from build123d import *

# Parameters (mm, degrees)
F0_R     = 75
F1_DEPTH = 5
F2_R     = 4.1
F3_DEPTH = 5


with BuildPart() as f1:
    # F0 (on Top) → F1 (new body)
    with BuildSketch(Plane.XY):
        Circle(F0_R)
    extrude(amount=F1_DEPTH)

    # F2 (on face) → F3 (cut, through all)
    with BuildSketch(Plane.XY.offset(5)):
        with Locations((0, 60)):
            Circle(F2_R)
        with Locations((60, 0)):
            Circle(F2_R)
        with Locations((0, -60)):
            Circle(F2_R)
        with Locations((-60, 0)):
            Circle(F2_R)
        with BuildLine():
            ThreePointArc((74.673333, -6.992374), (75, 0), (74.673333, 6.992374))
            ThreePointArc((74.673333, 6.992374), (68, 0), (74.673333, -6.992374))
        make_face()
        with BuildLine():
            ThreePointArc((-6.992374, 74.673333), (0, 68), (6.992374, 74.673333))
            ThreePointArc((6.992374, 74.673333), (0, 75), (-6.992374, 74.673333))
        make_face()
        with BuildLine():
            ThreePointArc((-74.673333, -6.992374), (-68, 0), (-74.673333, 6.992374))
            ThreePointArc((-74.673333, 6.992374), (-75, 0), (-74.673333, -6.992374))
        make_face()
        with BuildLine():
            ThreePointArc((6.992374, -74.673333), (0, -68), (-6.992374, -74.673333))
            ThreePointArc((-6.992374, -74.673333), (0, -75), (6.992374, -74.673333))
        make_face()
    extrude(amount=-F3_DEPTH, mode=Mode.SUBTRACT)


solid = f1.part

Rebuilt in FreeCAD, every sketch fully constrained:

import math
import FreeCAD as App
import Part
import Sketcher

V = App.Vector

doc = App.newDocument("Part")
body = doc.addObject("PartDesign::Body", "Body")

# Sketch on XY plane
sketch1 = doc.addObject("Sketcher::SketchObject", "Sketch")
body.addObject(sketch1)
sketch1.AttachmentSupport = (doc.XY_Plane, [""])
sketch1.MapMode = "FlatFace"
sketch1.addGeometry(Part.Circle(V(0, 0, 0), V(0, 0, 1), 75), False)
sketch1.addConstraint([
    Sketcher.Constraint("Coincident", 0, 3, -1, 1),
    Sketcher.Constraint("Diameter", 0, 150.0),
])
pad1 = doc.addObject("PartDesign::Pad", "Pad")
body.addObject(pad1)
pad1.Profile = sketch1
pad1.Length = 5

# Sketch on XY plane
sketch2 = doc.addObject("Sketcher::SketchObject", "Sketch001")
body.addObject(sketch2)
sketch2.AttachmentSupport = (doc.XY_Plane, [""])
sketch2.MapMode = "FlatFace"
sketch2.AttachmentOffset = App.Placement(V(0, 0, 5), App.Rotation())
sketch2.addGeometry([
    Part.Circle(V(0, 60, 0), V(0, 0, 1), 4.1),  # 0
    Part.Circle(V(60, 0, 0), V(0, 0, 1), 4.1),  # 1
    Part.Circle(V(0, -60, 0), V(0, 0, 1), 4.1),  # 2
    Part.Circle(V(-60, 0, 0), V(0, 0, 1), 4.1),  # 3
    Part.ArcOfCircle(Part.Circle(V(0.000068, 0, 0), V(0, 0, 1), 74.999932), math.radians(-5.349554), math.radians(5.349554)),  # 4
    Part.ArcOfCircle(Part.Circle(V(75, 0, 0), V(0, 0, 1), 7), math.radians(92.67478), math.radians(267.32522)),  # 5
    Part.ArcOfCircle(Part.Circle(V(0, 75, 0), V(0, 0, 1), 7), math.radians(-177.32522), math.radians(-2.67478)),  # 6
    Part.ArcOfCircle(Part.Circle(V(0, 0.000068, 0), V(0, 0, 1), 74.999932), math.radians(84.650446), math.radians(95.349554)),  # 7
    Part.ArcOfCircle(Part.Circle(V(-75, 0, 0), V(0, 0, 1), 7), math.radians(-87.32522), math.radians(87.32522)),  # 8
    Part.ArcOfCircle(Part.Circle(V(-0.000068, 0, 0), V(0, 0, 1), 74.999932), math.radians(174.650446), math.radians(185.349554)),  # 9
    Part.ArcOfCircle(Part.Circle(V(0, -75, 0), V(0, 0, 1), 7), math.radians(2.67478), math.radians(177.32522)),  # 10
    Part.ArcOfCircle(Part.Circle(V(0, -0.000068, 0), V(0, 0, 1), 74.999932), math.radians(-95.349554), math.radians(-84.650446)),  # 11
], False)
sketch2.addConstraint([
    Sketcher.Constraint("Coincident", 4, 1, 5, 2),
    Sketcher.Constraint("Coincident", 5, 1, 4, 2),
    Sketcher.Constraint("Coincident", 6, 1, 7, 2),
    Sketcher.Constraint("Coincident", 7, 1, 6, 2),
    Sketcher.Constraint("Coincident", 8, 1, 9, 2),
    Sketcher.Constraint("Coincident", 9, 1, 8, 2),
    Sketcher.Constraint("Coincident", 10, 1, 11, 2),
    Sketcher.Constraint("Coincident", 11, 1, 10, 2),
    Sketcher.Constraint("Equal", 0, 1),
    Sketcher.Constraint("Equal", 1, 2),
    Sketcher.Constraint("Equal", 2, 3),
    Sketcher.Constraint("Equal", 5, 6),
    Sketcher.Constraint("Equal", 4, 7),
    Sketcher.Constraint("Equal", 6, 8),
    Sketcher.Constraint("Equal", 7, 9),
    Sketcher.Constraint("Equal", 8, 10),
    Sketcher.Constraint("Equal", 9, 11),
    Sketcher.Constraint("Symmetric", 0, 3, 2, 3, -1, 1),
    Sketcher.Constraint("Symmetric", 1, 3, 3, 3, -1, 1),
    Sketcher.Constraint("Symmetric", 5, 3, 8, 3, -1, 1),
    Sketcher.Constraint("Symmetric", 4, 3, 9, 3, -1, 1),
    Sketcher.Constraint("Symmetric", 6, 3, 10, 3, -1, 1),
    Sketcher.Constraint("Symmetric", 7, 3, 11, 3, -1, 1),
    Sketcher.Constraint("Symmetric", 6, 1, 7, 1, -2),
    Sketcher.Constraint("Symmetric", 4, 1, 8, 1, -2),
    Sketcher.Constraint("PointOnObject", 0, 3, -2),
    Sketcher.Constraint("PointOnObject", 1, 3, -1),
    Sketcher.Constraint("Radius", 5, 7.0),
    Sketcher.Constraint("Diameter", 0, 8.2),
    Sketcher.Constraint("DistanceY", -1, 1, 0, 3, 60.0),
    Sketcher.Constraint("DistanceX", -1, 1, 1, 3, 60.0),
    Sketcher.Constraint("DistanceX", -1, 1, 5, 3, 75.0),
    Sketcher.Constraint("DistanceY", -1, 1, 6, 3, 75.0),
    Sketcher.Constraint("Radius", 4, 74.999932),
    Sketcher.Constraint("DistanceX", 4, 3, 1, 3, 59.999932),
    Sketcher.Constraint("DistanceY", 7, 3, 0, 3, 59.999932),
])
pocket1 = doc.addObject("PartDesign::Pocket", "Pocket")
body.addObject(pocket1)
pocket1.Profile = sketch2
pocket1.Type = "ThroughAll"

doc.recompute()
